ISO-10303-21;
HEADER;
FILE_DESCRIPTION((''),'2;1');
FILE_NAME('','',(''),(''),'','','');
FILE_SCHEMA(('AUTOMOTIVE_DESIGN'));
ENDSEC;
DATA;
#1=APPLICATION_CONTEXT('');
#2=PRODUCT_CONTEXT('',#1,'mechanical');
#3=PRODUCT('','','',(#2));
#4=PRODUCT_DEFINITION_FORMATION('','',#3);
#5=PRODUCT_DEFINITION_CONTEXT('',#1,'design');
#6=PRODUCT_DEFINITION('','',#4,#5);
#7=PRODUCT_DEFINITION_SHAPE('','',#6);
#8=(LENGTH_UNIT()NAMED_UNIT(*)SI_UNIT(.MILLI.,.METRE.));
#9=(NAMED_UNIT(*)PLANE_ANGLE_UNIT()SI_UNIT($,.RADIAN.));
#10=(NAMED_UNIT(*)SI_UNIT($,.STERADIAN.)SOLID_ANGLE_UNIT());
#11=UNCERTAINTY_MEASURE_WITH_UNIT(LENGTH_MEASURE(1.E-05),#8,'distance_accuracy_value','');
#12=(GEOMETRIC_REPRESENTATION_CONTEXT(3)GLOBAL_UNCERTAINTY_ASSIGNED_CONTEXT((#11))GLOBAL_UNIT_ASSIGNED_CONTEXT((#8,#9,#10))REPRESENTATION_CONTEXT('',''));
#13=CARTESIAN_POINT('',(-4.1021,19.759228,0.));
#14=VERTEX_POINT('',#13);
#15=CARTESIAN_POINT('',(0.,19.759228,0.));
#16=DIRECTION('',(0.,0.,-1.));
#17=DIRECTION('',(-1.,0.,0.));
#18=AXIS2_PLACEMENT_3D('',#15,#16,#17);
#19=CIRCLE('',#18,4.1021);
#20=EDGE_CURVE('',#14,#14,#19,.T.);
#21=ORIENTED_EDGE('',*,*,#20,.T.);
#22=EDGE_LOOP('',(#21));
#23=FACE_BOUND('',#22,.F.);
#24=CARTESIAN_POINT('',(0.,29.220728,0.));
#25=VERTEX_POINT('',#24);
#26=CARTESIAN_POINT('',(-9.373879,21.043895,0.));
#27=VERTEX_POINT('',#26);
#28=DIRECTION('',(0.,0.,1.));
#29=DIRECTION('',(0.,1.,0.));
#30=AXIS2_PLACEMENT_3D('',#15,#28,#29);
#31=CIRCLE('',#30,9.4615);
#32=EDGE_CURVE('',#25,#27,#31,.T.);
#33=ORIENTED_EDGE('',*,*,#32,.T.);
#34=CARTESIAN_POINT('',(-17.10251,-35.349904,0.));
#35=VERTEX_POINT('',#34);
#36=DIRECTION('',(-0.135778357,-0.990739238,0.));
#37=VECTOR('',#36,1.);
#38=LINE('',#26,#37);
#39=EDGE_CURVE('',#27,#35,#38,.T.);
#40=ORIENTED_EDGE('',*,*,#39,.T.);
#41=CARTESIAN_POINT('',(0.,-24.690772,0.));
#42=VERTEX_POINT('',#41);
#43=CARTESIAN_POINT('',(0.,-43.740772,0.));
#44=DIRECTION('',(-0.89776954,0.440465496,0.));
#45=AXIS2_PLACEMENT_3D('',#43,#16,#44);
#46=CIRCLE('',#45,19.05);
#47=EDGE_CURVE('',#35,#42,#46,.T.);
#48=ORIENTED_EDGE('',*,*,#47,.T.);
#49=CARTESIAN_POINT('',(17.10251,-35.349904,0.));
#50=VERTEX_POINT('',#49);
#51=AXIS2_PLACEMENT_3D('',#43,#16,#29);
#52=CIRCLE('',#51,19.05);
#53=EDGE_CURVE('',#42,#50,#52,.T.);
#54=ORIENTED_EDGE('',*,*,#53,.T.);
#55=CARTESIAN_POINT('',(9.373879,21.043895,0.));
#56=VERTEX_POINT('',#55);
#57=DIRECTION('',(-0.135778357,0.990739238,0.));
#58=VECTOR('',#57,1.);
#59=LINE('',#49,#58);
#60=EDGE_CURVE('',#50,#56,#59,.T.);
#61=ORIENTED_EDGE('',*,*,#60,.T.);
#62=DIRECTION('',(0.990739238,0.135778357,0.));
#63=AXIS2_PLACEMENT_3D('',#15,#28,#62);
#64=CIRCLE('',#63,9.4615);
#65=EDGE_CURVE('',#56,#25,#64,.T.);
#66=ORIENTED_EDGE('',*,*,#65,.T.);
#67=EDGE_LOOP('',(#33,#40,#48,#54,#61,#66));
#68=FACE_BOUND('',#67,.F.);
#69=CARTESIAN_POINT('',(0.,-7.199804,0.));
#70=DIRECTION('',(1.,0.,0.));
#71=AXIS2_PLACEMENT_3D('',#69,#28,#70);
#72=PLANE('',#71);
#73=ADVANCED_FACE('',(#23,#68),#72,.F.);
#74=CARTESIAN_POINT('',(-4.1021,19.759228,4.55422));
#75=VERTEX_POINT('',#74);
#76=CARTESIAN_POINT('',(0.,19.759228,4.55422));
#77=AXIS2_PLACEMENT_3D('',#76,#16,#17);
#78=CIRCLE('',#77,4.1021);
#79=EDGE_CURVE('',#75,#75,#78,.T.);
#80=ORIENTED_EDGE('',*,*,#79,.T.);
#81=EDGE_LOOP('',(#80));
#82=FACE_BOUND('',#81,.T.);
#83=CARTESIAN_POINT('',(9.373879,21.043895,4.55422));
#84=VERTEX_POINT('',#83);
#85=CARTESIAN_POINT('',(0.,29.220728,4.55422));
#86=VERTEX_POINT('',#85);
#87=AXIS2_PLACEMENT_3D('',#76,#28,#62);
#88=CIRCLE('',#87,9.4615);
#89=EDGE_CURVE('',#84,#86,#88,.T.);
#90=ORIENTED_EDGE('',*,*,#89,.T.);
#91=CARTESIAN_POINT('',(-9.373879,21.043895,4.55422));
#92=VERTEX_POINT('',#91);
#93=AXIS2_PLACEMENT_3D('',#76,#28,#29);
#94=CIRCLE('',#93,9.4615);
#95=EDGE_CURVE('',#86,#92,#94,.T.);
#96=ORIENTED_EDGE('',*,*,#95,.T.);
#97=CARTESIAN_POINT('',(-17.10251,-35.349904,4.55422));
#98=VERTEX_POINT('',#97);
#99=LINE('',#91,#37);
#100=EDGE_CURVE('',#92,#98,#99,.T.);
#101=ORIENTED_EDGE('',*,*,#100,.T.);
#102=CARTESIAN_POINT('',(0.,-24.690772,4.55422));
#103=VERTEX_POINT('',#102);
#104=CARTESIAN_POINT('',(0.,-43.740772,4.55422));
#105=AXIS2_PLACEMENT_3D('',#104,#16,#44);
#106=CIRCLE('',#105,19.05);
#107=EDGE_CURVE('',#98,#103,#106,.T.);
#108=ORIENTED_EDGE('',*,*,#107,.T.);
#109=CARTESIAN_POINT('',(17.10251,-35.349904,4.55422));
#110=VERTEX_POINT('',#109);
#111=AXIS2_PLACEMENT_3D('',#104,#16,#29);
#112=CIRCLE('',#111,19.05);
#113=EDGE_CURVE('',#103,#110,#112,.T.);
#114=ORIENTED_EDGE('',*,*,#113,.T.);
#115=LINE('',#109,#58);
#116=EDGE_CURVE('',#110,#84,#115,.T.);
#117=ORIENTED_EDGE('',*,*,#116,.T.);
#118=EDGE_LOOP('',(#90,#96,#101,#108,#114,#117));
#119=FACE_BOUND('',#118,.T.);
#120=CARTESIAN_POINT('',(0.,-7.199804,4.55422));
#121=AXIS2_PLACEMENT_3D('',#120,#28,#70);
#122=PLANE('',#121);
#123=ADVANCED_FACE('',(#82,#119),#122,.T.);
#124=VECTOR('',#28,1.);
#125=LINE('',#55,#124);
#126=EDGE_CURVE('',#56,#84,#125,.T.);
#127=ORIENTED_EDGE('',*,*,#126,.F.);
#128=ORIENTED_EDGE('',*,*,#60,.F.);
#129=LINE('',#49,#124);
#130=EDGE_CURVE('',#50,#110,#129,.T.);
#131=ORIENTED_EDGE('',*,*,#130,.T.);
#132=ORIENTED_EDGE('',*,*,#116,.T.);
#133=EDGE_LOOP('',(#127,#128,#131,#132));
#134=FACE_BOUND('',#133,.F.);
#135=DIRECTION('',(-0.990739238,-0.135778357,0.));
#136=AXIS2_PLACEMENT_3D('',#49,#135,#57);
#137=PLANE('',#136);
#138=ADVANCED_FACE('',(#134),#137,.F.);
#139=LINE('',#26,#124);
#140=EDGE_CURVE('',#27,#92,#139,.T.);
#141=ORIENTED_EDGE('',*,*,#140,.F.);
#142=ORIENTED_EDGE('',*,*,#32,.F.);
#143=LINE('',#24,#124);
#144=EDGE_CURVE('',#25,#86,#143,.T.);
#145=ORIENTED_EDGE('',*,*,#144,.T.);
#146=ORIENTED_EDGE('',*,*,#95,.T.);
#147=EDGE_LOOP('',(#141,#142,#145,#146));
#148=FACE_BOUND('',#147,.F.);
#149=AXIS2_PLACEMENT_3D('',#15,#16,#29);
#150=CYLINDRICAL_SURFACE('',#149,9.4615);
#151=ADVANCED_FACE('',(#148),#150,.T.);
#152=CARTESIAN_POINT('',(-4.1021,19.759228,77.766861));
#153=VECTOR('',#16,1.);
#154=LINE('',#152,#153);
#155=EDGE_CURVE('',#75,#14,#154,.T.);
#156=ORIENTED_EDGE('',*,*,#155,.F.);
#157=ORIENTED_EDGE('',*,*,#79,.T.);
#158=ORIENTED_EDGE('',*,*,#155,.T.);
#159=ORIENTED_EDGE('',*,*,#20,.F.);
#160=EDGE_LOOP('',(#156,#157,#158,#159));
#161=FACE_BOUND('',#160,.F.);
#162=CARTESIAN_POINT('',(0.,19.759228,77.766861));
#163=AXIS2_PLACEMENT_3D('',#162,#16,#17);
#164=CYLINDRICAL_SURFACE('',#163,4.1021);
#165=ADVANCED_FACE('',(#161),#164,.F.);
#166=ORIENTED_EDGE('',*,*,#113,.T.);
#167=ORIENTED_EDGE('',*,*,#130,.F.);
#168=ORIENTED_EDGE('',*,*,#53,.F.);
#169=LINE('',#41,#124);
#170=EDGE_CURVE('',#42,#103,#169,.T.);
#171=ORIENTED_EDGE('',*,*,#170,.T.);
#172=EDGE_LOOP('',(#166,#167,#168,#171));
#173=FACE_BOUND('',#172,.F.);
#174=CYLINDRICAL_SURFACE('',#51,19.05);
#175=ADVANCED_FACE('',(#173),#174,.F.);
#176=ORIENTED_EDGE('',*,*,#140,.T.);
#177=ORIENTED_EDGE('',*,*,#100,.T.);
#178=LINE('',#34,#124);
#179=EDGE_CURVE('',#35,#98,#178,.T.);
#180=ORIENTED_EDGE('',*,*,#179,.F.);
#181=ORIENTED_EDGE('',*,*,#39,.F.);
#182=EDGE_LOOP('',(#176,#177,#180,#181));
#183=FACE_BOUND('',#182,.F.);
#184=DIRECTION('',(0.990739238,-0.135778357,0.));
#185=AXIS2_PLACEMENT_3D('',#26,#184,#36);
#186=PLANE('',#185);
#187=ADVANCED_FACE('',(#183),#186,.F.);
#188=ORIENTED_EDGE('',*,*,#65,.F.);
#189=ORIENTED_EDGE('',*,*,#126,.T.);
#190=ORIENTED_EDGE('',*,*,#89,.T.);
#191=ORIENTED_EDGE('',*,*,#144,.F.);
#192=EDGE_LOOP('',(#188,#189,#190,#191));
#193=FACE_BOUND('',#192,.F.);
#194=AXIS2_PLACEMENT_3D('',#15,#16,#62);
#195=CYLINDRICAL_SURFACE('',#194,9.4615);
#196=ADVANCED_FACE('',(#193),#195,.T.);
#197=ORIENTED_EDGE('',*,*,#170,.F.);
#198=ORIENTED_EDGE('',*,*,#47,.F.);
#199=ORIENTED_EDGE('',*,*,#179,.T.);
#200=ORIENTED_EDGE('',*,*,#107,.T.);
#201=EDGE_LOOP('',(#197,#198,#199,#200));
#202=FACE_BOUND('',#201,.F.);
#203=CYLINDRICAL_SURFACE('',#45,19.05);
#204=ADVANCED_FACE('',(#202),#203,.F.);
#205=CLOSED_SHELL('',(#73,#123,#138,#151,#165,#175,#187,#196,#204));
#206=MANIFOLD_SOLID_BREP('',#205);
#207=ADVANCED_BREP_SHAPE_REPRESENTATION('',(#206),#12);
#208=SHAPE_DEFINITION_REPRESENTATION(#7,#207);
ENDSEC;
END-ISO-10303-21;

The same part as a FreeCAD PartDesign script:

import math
import FreeCAD as App
import Part
import Sketcher
from FreeCAD import Vector
Q = App.Units.Quantity

doc = App.newDocument("Part")
body = doc.addObject("PartDesign::Body", "Body")

# Sketch on XY plane
sketch1 = body.newObject("Sketcher::SketchObject", "Sketch")
sketch1.AttachmentSupport = (doc.getObject("XY_Plane"), [""])
sketch1.MapMode = "FlatFace"
sketch1.addGeometry(Part.ArcOfCircle(Part.Circle(Vector(0, 19.759228, 0), Vector(0, 0, 1), 9.4615), math.radians(7.803631), math.radians(90)), False)
sketch1.addGeometry(Part.ArcOfCircle(Part.Circle(Vector(0, 19.759228, 0), Vector(0, 0, 1), 9.4615), math.radians(90), math.radians(172.196369)), False)
sketch1.addGeometry(Part.LineSegment(Vector(-9.373879, 21.043895, 0), Vector(-17.10251, -35.349904, 0)), False)
sketch1.addGeometry(Part.ArcOfCircle(Part.Circle(Vector(0, -43.740772, 0), Vector(0, 0, 1), 19.05), math.radians(90), math.radians(153.866415)), False)
sketch1.addGeometry(Part.ArcOfCircle(Part.Circle(Vector(0, -43.740772, 0), Vector(0, 0, 1), 19.05), math.radians(26.133585), math.radians(90)), False)
sketch1.addGeometry(Part.LineSegment(Vector(17.10251, -35.349904, 0), Vector(9.373879, 21.043895, 0)), False)
sketch1.addConstraint(Sketcher.Constraint("Tangent", 0, 2, 1, 1))
sketch1.addConstraint(Sketcher.Constraint("Tangent", 1, 2, 2, 1))
sketch1.addConstraint(Sketcher.Constraint("Coincident", 2, 2, 3, 2))
sketch1.addConstraint(Sketcher.Constraint("Tangent", 3, 1, 4, 2))
sketch1.addConstraint(Sketcher.Constraint("Coincident", 4, 1, 5, 1))
sketch1.addConstraint(Sketcher.Constraint("Tangent", 5, 2, 0, 1))
sketch1.addConstraint(Sketcher.Constraint("Equal", 0, 1))
sketch1.addConstraint(Sketcher.Constraint("Equal", 3, 4))
sketch1.addConstraint(Sketcher.Constraint("Symmetric", 2, 2, 4, 1, -2))
sketch1.addConstraint(Sketcher.Constraint("PointOnObject", 0, 3, -2))
sketch1.addConstraint(Sketcher.Constraint("PointOnObject", 0, 2, -2))
sketch1.addConstraint(Sketcher.Constraint("PointOnObject", 3, 1, -2))
sketch1.addConstraint(Sketcher.Constraint("Radius", 3, Q("0.75 in")))
sketch1.addConstraint(Sketcher.Constraint("Radius", 0, Q("0.3725 in")))
sketch1.addConstraint(Sketcher.Constraint("DistanceY", 3, 3, 0, 3, Q("2.5 in")))
sketch1.addConstraint(Sketcher.Constraint("DistanceY", -1, 1, 1, 2, Q("0.8284998 in")))
sketch1.addConstraint(Sketcher.Constraint("DistanceY", 2, 2, 1, 2, Q("56.393799 mm")))
pad1 = body.newObject("PartDesign::Pad", "Pad")
pad1.Profile = sketch1
pad1.Length = Q("0.1793 in")

# Sketch on XY plane
sketch2 = body.newObject("Sketcher::SketchObject", "Sketch001")
sketch2.AttachmentSupport = (doc.getObject("XY_Plane"), [""])
sketch2.MapMode = "FlatFace"
sketch2.AttachmentOffset = App.Placement(Vector(0, 0, 0.1793 * 25.4), App.Rotation())
sketch2.addGeometry(Part.Circle(Vector(0, 19.759228, 0), Vector(0, 0, 1), 4.1021), False)
sketch2.addConstraint(Sketcher.Constraint("PointOnObject", 0, 3, -2))
sketch2.addConstraint(Sketcher.Constraint("Diameter", 0, Q("0.323 in")))
sketch2.addConstraint(Sketcher.Constraint("DistanceY", -1, 1, 0, 3, Q("19.759228 mm")))
doc.recompute()
hole = body.newObject("PartDesign::Hole", "Hole")
hole.Profile = sketch2
hole.ThreadType = "None"
hole.Diameter = Q("0.323 in")
hole.DepthType = "ThroughAll"

doc.recompute()
